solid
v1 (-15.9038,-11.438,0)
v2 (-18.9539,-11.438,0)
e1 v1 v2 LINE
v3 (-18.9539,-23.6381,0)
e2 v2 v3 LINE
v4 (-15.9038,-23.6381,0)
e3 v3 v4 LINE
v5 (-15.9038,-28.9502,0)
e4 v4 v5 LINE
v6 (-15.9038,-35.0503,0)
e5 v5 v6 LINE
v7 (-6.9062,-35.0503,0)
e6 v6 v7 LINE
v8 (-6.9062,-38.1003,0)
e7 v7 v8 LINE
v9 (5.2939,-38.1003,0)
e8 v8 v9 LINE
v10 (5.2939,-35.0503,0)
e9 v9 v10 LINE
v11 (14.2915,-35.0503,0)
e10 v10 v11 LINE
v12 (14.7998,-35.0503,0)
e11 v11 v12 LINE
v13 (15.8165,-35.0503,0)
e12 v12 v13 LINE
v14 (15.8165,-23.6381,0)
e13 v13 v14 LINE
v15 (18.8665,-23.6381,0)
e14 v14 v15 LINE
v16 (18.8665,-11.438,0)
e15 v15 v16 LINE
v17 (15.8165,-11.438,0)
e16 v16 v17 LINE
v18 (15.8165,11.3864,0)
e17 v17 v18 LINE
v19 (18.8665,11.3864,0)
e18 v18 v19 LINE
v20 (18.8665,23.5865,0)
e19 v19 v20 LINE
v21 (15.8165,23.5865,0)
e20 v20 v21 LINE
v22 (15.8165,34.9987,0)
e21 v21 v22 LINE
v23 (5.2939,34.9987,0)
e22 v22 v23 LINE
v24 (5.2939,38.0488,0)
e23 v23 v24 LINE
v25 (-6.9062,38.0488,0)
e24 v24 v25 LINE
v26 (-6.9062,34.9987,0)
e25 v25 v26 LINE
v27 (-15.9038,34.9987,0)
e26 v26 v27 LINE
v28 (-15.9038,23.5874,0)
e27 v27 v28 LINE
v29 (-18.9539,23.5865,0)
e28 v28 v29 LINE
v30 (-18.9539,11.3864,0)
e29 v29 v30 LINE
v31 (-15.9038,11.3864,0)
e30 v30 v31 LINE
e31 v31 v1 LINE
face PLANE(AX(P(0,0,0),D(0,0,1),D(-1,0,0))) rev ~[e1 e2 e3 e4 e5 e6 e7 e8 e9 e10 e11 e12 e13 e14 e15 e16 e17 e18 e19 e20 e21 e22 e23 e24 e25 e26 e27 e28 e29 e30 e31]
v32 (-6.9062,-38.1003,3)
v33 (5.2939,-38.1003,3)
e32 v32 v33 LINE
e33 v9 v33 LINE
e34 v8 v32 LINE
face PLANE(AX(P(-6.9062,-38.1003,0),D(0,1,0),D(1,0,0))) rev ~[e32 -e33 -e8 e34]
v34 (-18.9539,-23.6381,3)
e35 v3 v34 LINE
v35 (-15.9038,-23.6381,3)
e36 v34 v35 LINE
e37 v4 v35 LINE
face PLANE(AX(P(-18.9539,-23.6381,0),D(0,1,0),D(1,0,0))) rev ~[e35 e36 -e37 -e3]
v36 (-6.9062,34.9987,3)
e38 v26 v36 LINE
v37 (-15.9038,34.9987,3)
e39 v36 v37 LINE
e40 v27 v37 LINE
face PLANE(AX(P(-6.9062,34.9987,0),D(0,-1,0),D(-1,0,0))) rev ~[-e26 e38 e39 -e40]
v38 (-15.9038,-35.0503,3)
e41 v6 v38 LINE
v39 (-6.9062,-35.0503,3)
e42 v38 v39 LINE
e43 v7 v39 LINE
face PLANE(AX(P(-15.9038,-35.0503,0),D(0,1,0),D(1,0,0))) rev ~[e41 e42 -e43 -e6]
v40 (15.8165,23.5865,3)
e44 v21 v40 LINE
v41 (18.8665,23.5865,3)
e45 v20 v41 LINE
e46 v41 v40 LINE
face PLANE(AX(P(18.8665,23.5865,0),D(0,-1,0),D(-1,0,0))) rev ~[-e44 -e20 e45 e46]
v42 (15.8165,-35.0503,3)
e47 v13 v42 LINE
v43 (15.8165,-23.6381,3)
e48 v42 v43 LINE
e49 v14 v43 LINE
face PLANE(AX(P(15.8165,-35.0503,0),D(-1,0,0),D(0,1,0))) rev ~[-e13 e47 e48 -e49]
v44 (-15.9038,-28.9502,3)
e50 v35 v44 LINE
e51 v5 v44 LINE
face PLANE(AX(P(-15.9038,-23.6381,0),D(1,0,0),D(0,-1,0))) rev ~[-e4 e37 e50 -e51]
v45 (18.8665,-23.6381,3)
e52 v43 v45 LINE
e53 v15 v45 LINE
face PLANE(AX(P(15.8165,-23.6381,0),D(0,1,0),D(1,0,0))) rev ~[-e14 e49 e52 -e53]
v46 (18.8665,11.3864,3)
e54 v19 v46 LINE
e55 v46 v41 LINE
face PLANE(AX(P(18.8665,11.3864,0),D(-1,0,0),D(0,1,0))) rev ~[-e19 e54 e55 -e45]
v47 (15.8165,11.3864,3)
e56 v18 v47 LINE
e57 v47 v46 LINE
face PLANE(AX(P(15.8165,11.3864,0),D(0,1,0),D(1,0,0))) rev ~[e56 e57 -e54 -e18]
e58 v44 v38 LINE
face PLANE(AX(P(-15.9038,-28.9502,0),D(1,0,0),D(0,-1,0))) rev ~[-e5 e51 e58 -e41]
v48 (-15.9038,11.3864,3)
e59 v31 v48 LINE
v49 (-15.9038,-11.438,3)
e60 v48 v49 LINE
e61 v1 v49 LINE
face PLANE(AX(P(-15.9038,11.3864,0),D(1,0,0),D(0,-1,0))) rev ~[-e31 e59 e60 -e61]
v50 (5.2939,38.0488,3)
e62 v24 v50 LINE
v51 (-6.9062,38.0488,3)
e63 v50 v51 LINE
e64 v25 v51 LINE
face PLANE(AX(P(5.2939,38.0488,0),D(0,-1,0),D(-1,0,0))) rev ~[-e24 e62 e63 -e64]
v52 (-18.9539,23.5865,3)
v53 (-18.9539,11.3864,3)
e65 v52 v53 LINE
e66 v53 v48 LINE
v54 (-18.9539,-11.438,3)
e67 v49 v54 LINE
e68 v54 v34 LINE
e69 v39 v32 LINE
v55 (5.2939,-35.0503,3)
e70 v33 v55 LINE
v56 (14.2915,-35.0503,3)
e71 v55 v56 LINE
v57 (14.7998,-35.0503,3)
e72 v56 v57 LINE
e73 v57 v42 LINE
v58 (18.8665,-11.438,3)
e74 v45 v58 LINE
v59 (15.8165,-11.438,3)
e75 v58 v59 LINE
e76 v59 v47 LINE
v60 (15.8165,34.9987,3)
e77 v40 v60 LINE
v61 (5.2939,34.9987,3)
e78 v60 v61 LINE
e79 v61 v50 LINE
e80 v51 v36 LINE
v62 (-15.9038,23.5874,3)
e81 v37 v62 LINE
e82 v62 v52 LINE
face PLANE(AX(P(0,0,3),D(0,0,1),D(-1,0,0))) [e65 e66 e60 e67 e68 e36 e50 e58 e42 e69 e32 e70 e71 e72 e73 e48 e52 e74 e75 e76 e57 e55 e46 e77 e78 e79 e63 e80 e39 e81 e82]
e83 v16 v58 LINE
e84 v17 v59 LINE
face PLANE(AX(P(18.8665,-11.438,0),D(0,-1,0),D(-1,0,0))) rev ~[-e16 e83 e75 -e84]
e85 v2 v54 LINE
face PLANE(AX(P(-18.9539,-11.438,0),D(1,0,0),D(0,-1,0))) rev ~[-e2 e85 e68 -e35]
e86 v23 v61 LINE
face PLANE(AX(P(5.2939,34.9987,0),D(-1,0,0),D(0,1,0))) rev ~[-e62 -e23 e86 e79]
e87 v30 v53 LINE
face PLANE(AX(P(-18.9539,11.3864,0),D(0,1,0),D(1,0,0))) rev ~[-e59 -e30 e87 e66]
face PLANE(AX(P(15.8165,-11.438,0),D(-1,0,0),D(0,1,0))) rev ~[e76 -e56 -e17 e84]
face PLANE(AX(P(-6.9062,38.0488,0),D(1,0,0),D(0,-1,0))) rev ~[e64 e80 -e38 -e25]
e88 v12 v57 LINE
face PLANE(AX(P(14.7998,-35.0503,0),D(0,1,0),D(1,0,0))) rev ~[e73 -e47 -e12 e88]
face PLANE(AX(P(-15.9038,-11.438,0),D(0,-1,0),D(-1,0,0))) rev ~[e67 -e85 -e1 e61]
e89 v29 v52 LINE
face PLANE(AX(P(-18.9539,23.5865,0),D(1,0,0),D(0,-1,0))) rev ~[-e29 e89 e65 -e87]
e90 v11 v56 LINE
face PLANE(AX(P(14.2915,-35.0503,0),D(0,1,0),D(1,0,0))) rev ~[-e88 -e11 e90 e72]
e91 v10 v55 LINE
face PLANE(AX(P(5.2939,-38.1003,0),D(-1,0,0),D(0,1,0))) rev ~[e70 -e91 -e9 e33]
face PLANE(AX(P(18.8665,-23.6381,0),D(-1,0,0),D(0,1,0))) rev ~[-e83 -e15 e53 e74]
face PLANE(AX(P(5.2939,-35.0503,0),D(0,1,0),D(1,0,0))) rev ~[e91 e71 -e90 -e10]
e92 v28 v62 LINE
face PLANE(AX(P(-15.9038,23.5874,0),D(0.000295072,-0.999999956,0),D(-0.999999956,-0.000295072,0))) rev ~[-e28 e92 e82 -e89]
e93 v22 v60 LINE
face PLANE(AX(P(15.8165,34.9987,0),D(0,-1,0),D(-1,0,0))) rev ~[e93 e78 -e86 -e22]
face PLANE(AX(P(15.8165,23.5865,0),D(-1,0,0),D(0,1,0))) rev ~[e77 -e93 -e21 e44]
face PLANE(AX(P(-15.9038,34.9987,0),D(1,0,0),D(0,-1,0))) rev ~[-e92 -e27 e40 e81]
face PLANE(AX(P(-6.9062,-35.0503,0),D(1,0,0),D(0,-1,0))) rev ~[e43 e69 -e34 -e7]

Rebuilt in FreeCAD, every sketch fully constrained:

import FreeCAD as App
import Part
import Sketcher
from FreeCAD import Vector

doc = App.newDocument("Part")
params = doc.addObject("Spreadsheet::Sheet", "Params")
for row, (alias, value) in enumerate([
    ("sketch1_width", "12.2 mm"),
    ("sketch1_width2", "3.05 mm"),
    ("pad1_length", "3 mm"),
], start=1):
    params.set(f"A{row}", alias)
    params.set(f"B{row}", "=" + value)
    params.setAlias(f"B{row}", alias)

body = doc.addObject("PartDesign::Body", "Body")

sketch1 = body.newObject("Sketcher::SketchObject", "Sketch")
sketch1.AttachmentSupport = (doc.getObject("XY_Plane"), [""])
sketch1.MapMode = "FlatFace"
sketch1.addGeometry(Part.LineSegment(Vector(15.8165, -11.438, 0), Vector(15.8165, 11.3864, 0)), False)
sketch1.addGeometry(Part.LineSegment(Vector(15.8165, 11.3864, 0), Vector(18.8665, 11.3864, 0)), False)
sketch1.addGeometry(Part.LineSegment(Vector(18.8665, 11.3864, 0), Vector(18.8665, 23.5865, 0)), False)
sketch1.addGeometry(Part.LineSegment(Vector(18.8665, 23.5865, 0), Vector(15.8165, 23.5865, 0)), False)
sketch1.addGeometry(Part.LineSegment(Vector(15.8165, 23.5865, 0), Vector(15.8165, 34.9987, 0)), False)
sketch1.addGeometry(Part.LineSegment(Vector(15.8165, 34.9987, 0), Vector(5.2939, 34.9987, 0)), False)
sketch1.addGeometry(Part.LineSegment(Vector(5.2939, 34.9987, 0), Vector(5.2939, 38.0488, 0)), False)
sketch1.addGeometry(Part.LineSegment(Vector(5.2939, 38.0488, 0), Vector(-6.9062, 38.0488, 0)), False)
sketch1.addGeometry(Part.LineSegment(Vector(-6.9062, 38.0488, 0), Vector(-6.9062, 34.9987, 0)), False)
sketch1.addGeometry(Part.LineSegment(Vector(-6.9062, 34.9987, 0), Vector(-15.9038, 34.9987, 0)), False)
sketch1.addGeometry(Part.LineSegment(Vector(-15.9038, 34.9987, 0), Vector(-15.9038, 23.5874, 0)), False)
sketch1.addGeometry(Part.LineSegment(Vector(-15.9038, 23.5874, 0), Vector(-18.9539, 23.5865, 0)), False)
sketch1.addGeometry(Part.LineSegment(Vector(-18.9539, 23.5865, 0), Vector(-18.9539, 11.3864, 0)), False)
sketch1.addGeometry(Part.LineSegment(Vector(-18.9539, 11.3864, 0), Vector(-15.9038, 11.3864, 0)), False)
sketch1.addGeometry(Part.LineSegment(Vector(-15.9038, 11.3864, 0), Vector(-15.9038, -11.438, 0)), False)
sketch1.addGeometry(Part.LineSegment(Vector(-15.9038, -11.438, 0), Vector(-18.9539, -11.438, 0)), False)
sketch1.addGeometry(Part.LineSegment(Vector(-18.9539, -11.438, 0), Vector(-18.9539, -23.6381, 0)), False)
sketch1.addGeometry(Part.LineSegment(Vector(-18.9539, -23.6381, 0), Vector(-15.9038, -23.6381, 0)), False)
sketch1.addGeometry(Part.LineSegment(Vector(-15.9038, -23.6381, 0), Vector(-15.9038, -35.0503, 0)), False)
sketch1.addGeometry(Part.LineSegment(Vector(-15.9038, -35.0503, 0), Vector(-6.9062, -35.0503, 0)), False)
sketch1.addGeometry(Part.LineSegment(Vector(-6.9062, -35.0503, 0), Vector(-6.9062, -38.1003, 0)), False)
sketch1.addGeometry(Part.LineSegment(Vector(-6.9062, -38.1003, 0), Vector(5.2939, -38.1003, 0)), False)
sketch1.addGeometry(Part.LineSegment(Vector(5.2939, -38.1003, 0), Vector(5.2939, -35.0503, 0)), False)
sketch1.addGeometry(Part.LineSegment(Vector(5.2939, -35.0503, 0), Vector(15.8165, -35.0503, 0)), False)
sketch1.addGeometry(Part.LineSegment(Vector(15.8165, -35.0503, 0), Vector(15.8165, -23.6381, 0)), False)
sketch1.addGeometry(Part.LineSegment(Vector(15.8165, -23.6381, 0), Vector(18.8665, -23.6381, 0)), False)
sketch1.addGeometry(Part.LineSegment(Vector(18.8665, -23.6381, 0), Vector(18.8665, -11.438, 0)), False)
sketch1.addGeometry(Part.LineSegment(Vector(18.8665, -11.438, 0), Vector(15.8165, -11.438, 0)), False)
sketch1.addConstraint(Sketcher.Constraint("Coincident", 0, 2, 1, 1))
sketch1.addConstraint(Sketcher.Constraint("Coincident", 1, 2, 2, 1))
sketch1.addConstraint(Sketcher.Constraint("Coincident", 2, 2, 3, 1))
sketch1.addConstraint(Sketcher.Constraint("Coincident", 3, 2, 4, 1))
sketch1.addConstraint(Sketcher.Constraint("Coincident", 4, 2, 5, 1))
sketch1.addConstraint(Sketcher.Constraint("Coincident", 5, 2, 6, 1))
sketch1.addConstraint(Sketcher.Constraint("Coincident", 6, 2, 7, 1))
sketch1.addConstraint(Sketcher.Constraint("Coincident", 7, 2, 8, 1))
sketch1.addConstraint(Sketcher.Constraint("Coincident", 8, 2, 9, 1))
sketch1.addConstraint(Sketcher.Constraint("Coincident", 9, 2, 10, 1))
sketch1.addConstraint(Sketcher.Constraint("Coincident", 10, 2, 11, 1))
sketch1.addConstraint(Sketcher.Constraint("Coincident", 11, 2, 12, 1))
sketch1.addConstraint(Sketcher.Constraint("Coincident", 12, 2, 13, 1))
sketch1.addConstraint(Sketcher.Constraint("Coincident", 13, 2, 14, 1))
sketch1.addConstraint(Sketcher.Constraint("Coincident", 14, 2, 15, 1))
sketch1.addConstraint(Sketcher.Constraint("Coincident", 15, 2, 16, 1))
sketch1.addConstraint(Sketcher.Constraint("Coincident", 16, 2, 17, 1))
sketch1.addConstraint(Sketcher.Constraint("Coincident", 17, 2, 18, 1))
sketch1.addConstraint(Sketcher.Constraint("Coincident", 18, 2, 19, 1))
sketch1.addConstraint(Sketcher.Constraint("Coincident", 19, 2, 20, 1))
sketch1.addConstraint(Sketcher.Constraint("Coincident", 20, 2, 21, 1))
sketch1.addConstraint(Sketcher.Constraint("Coincident", 21, 2, 22, 1))
sketch1.addConstraint(Sketcher.Constraint("Coincident", 22, 2, 23, 1))
sketch1.addConstraint(Sketcher.Constraint("Coincident", 23, 2, 24, 1))
sketch1.addConstraint(Sketcher.Constraint("Coincident", 24, 2, 25, 1))
sketch1.addConstraint(Sketcher.Constraint("Coincident", 25, 2, 26, 1))
sketch1.addConstraint(Sketcher.Constraint("Coincident", 26, 2, 27, 1))
sketch1.addConstraint(Sketcher.Constraint("Coincident", 27, 2, 0, 1))
sketch1.addConstraint(Sketcher.Constraint("Vertical", 0))
sketch1.addConstraint(Sketcher.Constraint("Horizontal", 1))
sketch1.addConstraint(Sketcher.Constraint("Vertical", 2))
sketch1.addConstraint(Sketcher.Constraint("Horizontal", 3))
sketch1.addConstraint(Sketcher.Constraint("Vertical", 4))
sketch1.addConstraint(Sketcher.Constraint("Horizontal", 5))
sketch1.addConstraint(Sketcher.Constraint("Vertical", 6))
sketch1.addConstraint(Sketcher.Constraint("Horizontal", 7))
sketch1.addConstraint(Sketcher.Constraint("Vertical", 8))
sketch1.addConstraint(Sketcher.Constraint("Horizontal", 9))
sketch1.addConstraint(Sketcher.Constraint("Vertical", 10))
sketch1.addConstraint(Sketcher.Constraint("Vertical", 12))
sketch1.addConstraint(Sketcher.Constraint("Horizontal", 13))
sketch1.addConstraint(Sketcher.Constraint("Vertical", 14))
sketch1.addConstraint(Sketcher.Constraint("Horizontal", 15))
sketch1.addConstraint(Sketcher.Constraint("Vertical", 16))
sketch1.addConstraint(Sketcher.Constraint("Horizontal", 17))
sketch1.addConstraint(Sketcher.Constraint("Vertical", 18))
sketch1.addConstraint(Sketcher.Constraint("Horizontal", 19))
sketch1.addConstraint(Sketcher.Constraint("Vertical", 20))
sketch1.addConstraint(Sketcher.Constraint("Horizontal", 21))
sketch1.addConstraint(Sketcher.Constraint("Vertical", 22))
sketch1.addConstraint(Sketcher.Constraint("Horizontal", 23))
sketch1.addConstraint(Sketcher.Constraint("Vertical", 24))
sketch1.addConstraint(Sketcher.Constraint("Horizontal", 25))
sketch1.addConstraint(Sketcher.Constraint("Vertical", 26))
sketch1.addConstraint(Sketcher.Constraint("Horizontal", 27))
sketch1.addConstraint(Sketcher.Constraint("Horizontal", 5, 2, 8, 2))
sketch1.addConstraint(Sketcher.Constraint("Horizontal", 3, 2, 11, 2))
sketch1.addConstraint(Sketcher.Constraint("Horizontal", 1, 2, 12, 2))
sketch1.addConstraint(Sketcher.Constraint("Horizontal", 19, 2, 22, 2))
sketch1.addConstraint(Sketcher.Constraint("Horizontal", 17, 2, 24, 2))
sketch1.addConstraint(Sketcher.Constraint("Horizontal", 15, 2, 26, 2))
sketch1.addConstraint(Sketcher.Constraint("Vertical", 0, 2, 3, 2))
sketch1.addConstraint(Sketcher.Constraint("Vertical", 10, 2, 13, 2))
sketch1.addConstraint(Sketcher.Constraint("Vertical", 12, 2, 15, 2))
sketch1.addConstraint(Sketcher.Constraint("Vertical", 14, 2, 17, 2))
sketch1.addConstraint(Sketcher.Constraint("Vertical", 8, 2, 19, 2))
sketch1.addConstraint(Sketcher.Constraint("Vertical", 6, 2, 21, 2))
sketch1.addConstraint(Sketcher.Constraint("Vertical", 4, 2, 23, 2))
sketch1.addConstraint(Sketcher.Constraint("Vertical", 2, 2, 25, 2))
sketch1.addConstraint(Sketcher.Constraint("Equal", 3, 13))
sketch1.addConstraint(Sketcher.Constraint("Equal", 21, 2))
sketch1.addConstraint(Sketcher.Constraint("Equal", 27, 6))
sketch1.addConstraint(Sketcher.Constraint("Equal", 12, 16))
sketch1.addConstraint(Sketcher.Constraint("Equal", 4, 18))
sketch1.addConstraint(Sketcher.Constraint("Equal", 8, 20))
sketch1.addConstraint(Sketcher.Constraint("DistanceX", 7, 2, 7, 1, 12.2))
sketch1.addConstraint(Sketcher.Constraint("DistanceX", 1, 1, 1, 2, 3.05))
sketch1.addConstraint(Sketcher.Constraint("DistanceX", 5, 2, 5, 1, 10.5226))
sketch1.addConstraint(Sketcher.Constraint("DistanceX", 9, 2, 9, 1, 8.9976))
sketch1.addConstraint(Sketcher.Constraint("DistanceY", 0, 1, 0, 2, 22.8244))
sketch1.addConstraint(Sketcher.Constraint("DistanceY", 4, 1, 4, 2, 11.4122))
sketch1.addConstraint(Sketcher.Constraint("DistanceY", 10, 2, 10, 1, 11.4113))
sketch1.addConstraint(Sketcher.Constraint("DistanceX", -1, 1, 5, 2, 5.294))
sketch1.addConstraint(Sketcher.Constraint("DistanceY", 14, 2, -1, 1, 11.438))
sketch1.setExpression("Constraints[75]", "Params.sketch1_width")
sketch1.setExpression("Constraints[76]", "Params.sketch1_width2")
pad1 = body.newObject("PartDesign::Pad", "Pad")
pad1.Profile = sketch1
pad1.setExpression("Length", "Params.pad1_length")

doc.recompute()
